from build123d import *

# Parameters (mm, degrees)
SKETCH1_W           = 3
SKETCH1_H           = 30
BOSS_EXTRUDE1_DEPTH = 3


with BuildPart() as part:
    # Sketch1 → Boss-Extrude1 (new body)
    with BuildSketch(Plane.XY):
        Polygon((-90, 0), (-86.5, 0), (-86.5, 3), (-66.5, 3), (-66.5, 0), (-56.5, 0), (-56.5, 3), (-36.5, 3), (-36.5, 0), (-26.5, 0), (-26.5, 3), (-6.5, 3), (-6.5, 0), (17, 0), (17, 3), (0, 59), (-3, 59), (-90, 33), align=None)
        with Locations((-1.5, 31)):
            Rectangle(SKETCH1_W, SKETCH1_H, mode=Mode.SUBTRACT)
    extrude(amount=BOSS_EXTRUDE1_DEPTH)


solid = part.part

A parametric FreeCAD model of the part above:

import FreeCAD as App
import Part
import Sketcher
from FreeCAD import Vector
Q = App.Units.Quantity

doc = App.newDocument("Part")
body = doc.addObject("PartDesign::Body", "Body")

sketch1 = body.newObject("Sketcher::SketchObject", "Sketch")
sketch1.AttachmentSupport = (doc.getObject("XY_Plane"), [""])
sketch1.MapMode = "FlatFace"
sketch1.addGeometry(Part.LineSegment(Vector(-90, 0, 0), Vector(-86.5, 0, 0)), False)
sketch1.addGeometry(Part.LineSegment(Vector(-86.5, 0, 0), Vector(-86.5, 3, 0)), False)
sketch1.addGeometry(Part.LineSegment(Vector(-86.5, 3, 0), Vector(-66.5, 3, 0)), False)
sketch1.addGeometry(Part.LineSegment(Vector(-66.5, 3, 0), Vector(-66.5, 0, 0)), False)
sketch1.addGeometry(Part.LineSegment(Vector(-66.5, 0, 0), Vector(-56.5, 0, 0)), False)
sketch1.addGeometry(Part.LineSegment(Vector(-56.5, 0, 0), Vector(-56.5, 3, 0)), False)
sketch1.addGeometry(Part.LineSegment(Vector(-56.5, 3, 0), Vector(-36.5, 3, 0)), False)
sketch1.addGeometry(Part.LineSegment(Vector(-36.5, 3, 0), Vector(-36.5, 0, 0)), False)
sketch1.addGeometry(Part.LineSegment(Vector(-36.5, 0, 0), Vector(-26.5, 0, 0)), False)
sketch1.addGeometry(Part.LineSegment(Vector(-26.5, 0, 0), Vector(-26.5, 3, 0)), False)
sketch1.addGeometry(Part.LineSegment(Vector(-26.5, 3, 0), Vector(-6.5, 3, 0)), False)
sketch1.addGeometry(Part.LineSegment(Vector(-6.5, 3, 0), Vector(-6.5, 0, 0)), False)
sketch1.addGeometry(Part.LineSegment(Vector(-6.5, 0, 0), Vector(17, 0, 0)), False)
sketch1.addGeometry(Part.LineSegment(Vector(17, 0, 0), Vector(17, 3, 0)), False)
sketch1.addGeometry(Part.LineSegment(Vector(17, 3, 0), Vector(0, 59, 0)), False)
sketch1.addGeometry(Part.LineSegment(Vector(0, 59, 0), Vector(-3, 59, 0)), False)
sketch1.addGeometry(Part.LineSegment(Vector(-3, 59, 0), Vector(-90, 33, 0)), False)
sketch1.addGeometry(Part.LineSegment(Vector(-90, 33, 0), Vector(-90, 0, 0)), False)
sketch1.addGeometry(Part.LineSegment(Vector(0, 16, 0), Vector(-3, 16, 0)), False)
sketch1.addGeometry(Part.LineSegment(Vector(-3, 16, 0), Vector(-3, 46, 0)), False)
sketch1.addGeometry(Part.LineSegment(Vector(-3, 46, 0), Vector(0, 46, 0)), False)
sketch1.addGeometry(Part.LineSegment(Vector(0, 46, 0), Vector(0, 16, 0)), False)
sketch1.addConstraint(Sketcher.Constraint("Coincident", 0, 2, 1, 1))
sketch1.addConstraint(Sketcher.Constraint("Coincident", 1, 2, 2, 1))
sketch1.addConstraint(Sketcher.Constraint("Coincident", 2, 2, 3, 1))
sketch1.addConstraint(Sketcher.Constraint("Coincident", 3, 2, 4, 1))
sketch1.addConstraint(Sketcher.Constraint("Coincident", 4, 2, 5, 1))
sketch1.addConstraint(Sketcher.Constraint("Coincident", 5, 2, 6, 1))
sketch1.addConstraint(Sketcher.Constraint("Coincident", 6, 2, 7, 1))
sketch1.addConstraint(Sketcher.Constraint("Coincident", 7, 2, 8, 1))
sketch1.addConstraint(Sketcher.Constraint("Coincident", 8, 2, 9, 1))
sketch1.addConstraint(Sketcher.Constraint("Coincident", 9, 2, 10, 1))
sketch1.addConstraint(Sketcher.Constraint("Coincident", 10, 2, 11, 1))
sketch1.addConstraint(Sketcher.Constraint("Coincident", 11, 2, 12, 1))
sketch1.addConstraint(Sketcher.Constraint("Coincident", 12, 2, 13, 1))
sketch1.addConstraint(Sketcher.Constraint("Coincident", 13, 2, 14, 1))
sketch1.addConstraint(Sketcher.Constraint("Coincident", 14, 2, 15, 1))
sketch1.addConstraint(Sketcher.Constraint("Coincident", 15, 2, 16, 1))
sketch1.addConstraint(Sketcher.Constraint("Coincident", 16, 2, 17, 1))
sketch1.addConstraint(Sketcher.Constraint("Coincident", 17, 2, 0, 1))
sketch1.addConstraint(Sketcher.Constraint("Coincident", 18, 2, 19, 1))
sketch1.addConstraint(Sketcher.Constraint("Coincident", 19, 2, 20, 1))
sketch1.addConstraint(Sketcher.Constraint("Coincident", 20, 2, 21, 1))
sketch1.addConstraint(Sketcher.Constraint("Coincident", 21, 2, 18, 1))
sketch1.addConstraint(Sketcher.Constraint("Horizontal", 0))
sketch1.addConstraint(Sketcher.Constraint("Vertical", 1))
sketch1.addConstraint(Sketcher.Constraint("Horizontal", 2))
sketch1.addConstraint(Sketcher.Constraint("Vertical", 3))
sketch1.addConstraint(Sketcher.Constraint("Horizontal", 4))
sketch1.addConstraint(Sketcher.Constraint("Vertical", 5))
sketch1.addConstraint(Sketcher.Constraint("Horizontal", 6))
sketch1.addConstraint(Sketcher.Constraint("Vertical", 7))
sketch1.addConstraint(Sketcher.Constraint("Horizontal", 8))
sketch1.addConstraint(Sketcher.Constraint("Vertical", 9))
sketch1.addConstraint(Sketcher.Constraint("Horizontal", 10))
sketch1.addConstraint(Sketcher.Constraint("Vertical", 11))
sketch1.addConstraint(Sketcher.Constraint("Horizontal", 12))
sketch1.addConstraint(Sketcher.Constraint("Vertical", 13))
sketch1.addConstraint(Sketcher.Constraint("Horizontal", 15))
sketch1.addConstraint(Sketcher.Constraint("Vertical", 17))
sketch1.addConstraint(Sketcher.Constraint("Horizontal", 18))
sketch1.addConstraint(Sketcher.Constraint("Vertical", 19))
sketch1.addConstraint(Sketcher.Constraint("Horizontal", 20))
sketch1.addConstraint(Sketcher.Constraint("Vertical", 21))
sketch1.addConstraint(Sketcher.Constraint("PointOnObject", 0, 2, -1))
sketch1.addConstraint(Sketcher.Constraint("PointOnObject", 3, 2, -1))
sketch1.addConstraint(Sketcher.Constraint("PointOnObject", 7, 2, -1))
sketch1.addConstraint(Sketcher.Constraint("PointOnObject", 11, 2, -1))
sketch1.addConstraint(Sketcher.Constraint("PointOnObject", 14, 2, -2))
sketch1.addConstraint(Sketcher.Constraint("PointOnObject", 20, 2, -2))
sketch1.addConstraint(Sketcher.Constraint("Horizontal", 2, 2, 5, 2))
sketch1.addConstraint(Sketcher.Constraint("Horizontal", 6, 2, 9, 2))
sketch1.addConstraint(Sketcher.Constraint("Horizontal", 10, 2, 13, 2))
sketch1.addConstraint(Sketcher.Constraint("Vertical", 15, 2, 18, 2))
sketch1.addConstraint(Sketcher.Constraint("Equal", 2, 6))
sketch1.addConstraint(Sketcher.Constraint("Equal", 4, 8))
sketch1.addConstraint(Sketcher.Constraint("Equal", 6, 10))
sketch1.addConstraint(Sketcher.Constraint("Equal", 20, 1))
sketch1.addConstraint(Sketcher.Constraint("DistanceX", 2, 1, 2, 2, Q("20 mm")))
sketch1.addConstraint(Sketcher.Constraint("DistanceX", 4, 1, 4, 2, Q("10 mm")))
sketch1.addConstraint(Sketcher.Constraint("DistanceX", 15, 2, 15, 1, Q("3 mm")))
sketch1.addConstraint(Sketcher.Constraint("DistanceY", 17, 2, 17, 1, Q("33 mm")))
sketch1.addConstraint(Sketcher.Constraint("DistanceY", 19, 1, 19, 2, Q("30 mm")))
sketch1.addConstraint(Sketcher.Constraint("DistanceX", 0, 1, 0, 2, Q("3.5 mm")))
sketch1.addConstraint(Sketcher.Constraint("DistanceX", 12, 1, 12, 2, Q("23.5 mm")))
sketch1.addConstraint(Sketcher.Constraint("DistanceX", -1, 1, 12, 2, Q("17 mm")))
sketch1.addConstraint(Sketcher.Constraint("DistanceY", -1, 1, 14, 2, Q("59 mm")))
sketch1.addConstraint(Sketcher.Constraint("DistanceY", -1, 1, 18, 2, Q("16 mm")))
pad1 = body.newObject("PartDesign::Pad", "Pad")
pad1.Profile = sketch1
pad1.Length = 3

doc.recompute()
